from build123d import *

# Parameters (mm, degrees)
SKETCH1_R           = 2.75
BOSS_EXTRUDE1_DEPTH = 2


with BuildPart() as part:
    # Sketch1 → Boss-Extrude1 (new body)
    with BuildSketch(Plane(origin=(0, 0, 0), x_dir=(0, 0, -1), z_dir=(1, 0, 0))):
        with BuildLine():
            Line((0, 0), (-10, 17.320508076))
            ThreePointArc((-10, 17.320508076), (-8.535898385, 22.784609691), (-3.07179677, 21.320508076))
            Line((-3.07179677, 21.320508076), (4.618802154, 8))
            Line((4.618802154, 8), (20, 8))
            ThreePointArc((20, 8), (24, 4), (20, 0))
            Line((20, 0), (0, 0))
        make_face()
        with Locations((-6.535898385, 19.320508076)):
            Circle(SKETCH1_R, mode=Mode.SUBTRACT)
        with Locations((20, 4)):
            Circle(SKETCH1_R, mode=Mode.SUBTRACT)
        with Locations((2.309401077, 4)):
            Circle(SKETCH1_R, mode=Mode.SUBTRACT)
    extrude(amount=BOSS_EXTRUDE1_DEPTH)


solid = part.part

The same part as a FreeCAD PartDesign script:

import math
import FreeCAD as App
import Part
import Sketcher
from FreeCAD import Vector
Q = App.Units.Quantity

doc = App.newDocument("Part")
params = doc.addObject("Spreadsheet::Sheet", "Params")
for row, (alias, value) in enumerate([
    ("sketch1_radius", "4 mm"),
    ("sketch1_diameter", "5.5 mm"),
    ("sketch1_height", "20 mm"),
    ("sketch1_length", "20 mm"),
    ("pad1_length", "2 mm"),
], start=1):
    params.set(f"A{row}", alias)
    params.set(f"B{row}", "=" + value)
    params.setAlias(f"B{row}", alias)

body = doc.addObject("PartDesign::Body", "Body")

sketch1 = body.newObject("Sketcher::SketchObject", "Sketch")
sketch1.AttachmentSupport = (doc.getObject("YZ_Plane"), [""])
sketch1.MapMode = "FlatFace"
sketch1.addGeometry(Part.LineSegment(Vector(17.3, 10, 0), Vector(0, 0, 0)), False)
sketch1.addGeometry(Part.LineSegment(Vector(0, 0, 0), Vector(0, -20, 0)), False)
sketch1.addGeometry(Part.ArcOfCircle(Part.Circle(Vector(4, -20, 0), Vector(0, 0, 1), 4), math.radians(180), math.radians(360)), False)
sketch1.addGeometry(Part.LineSegment(Vector(8, -20, 0), Vector(8, -4.6, 0)), False)
sketch1.addGeometry(Part.LineSegment(Vector(8, -4.6, 0), Vector(21.3, 3.1, 0)), False)
sketch1.addGeometry(Part.ArcOfCircle(Part.Circle(Vector(19.3, 6.5, 0), Vector(0, 0, 1), 4), math.radians(-60), math.radians(120)), False)
sketch1.addGeometry(Part.Circle(Vector(4, -20, 0), Vector(0, 0, 1), 2.8), False)
sketch1.addGeometry(Part.Circle(Vector(4, -2.3, 0), Vector(0, 0, 1), 2.8), False)
sketch1.addGeometry(Part.Circle(Vector(19.3, 6.5, 0), Vector(0, 0, 1), 2.8), False)
sketch1.addConstraint(Sketcher.Constraint("Coincident", 0, 2, 1, 1))
sketch1.addConstraint(Sketcher.Constraint("Tangent", 1, 2, 2, 1))
sketch1.addConstraint(Sketcher.Constraint("Tangent", 2, 2, 3, 1))
sketch1.addConstraint(Sketcher.Constraint("Coincident", 3, 2, 4, 1))
sketch1.addConstraint(Sketcher.Constraint("Tangent", 4, 2, 5, 1))
sketch1.addConstraint(Sketcher.Constraint("Tangent", 5, 2, 0, 1))
sketch1.addConstraint(Sketcher.Constraint("Vertical", 1))
sketch1.addConstraint(Sketcher.Constraint("Vertical", 3))
sketch1.addConstraint(Sketcher.Constraint("Coincident", 0, 2, -1, 1))
sketch1.addConstraint(Sketcher.Constraint("Coincident", 6, 3, 2, 3))
sketch1.addConstraint(Sketcher.Constraint("Coincident", 8, 3, 5, 3))
sketch1.addConstraint(Sketcher.Constraint("Equal", 2, 5))
sketch1.addConstraint(Sketcher.Constraint("Equal", 6, 7))
sketch1.addConstraint(Sketcher.Constraint("Equal", 7, 8))
sketch1.addConstraint(Sketcher.Constraint("Parallel", 0, 4))
sketch1.addConstraint(Sketcher.Constraint("Vertical", 6, 3, 7, 3))
sketch1.addConstraint(Sketcher.Constraint("Radius", 2, 4.0))
sketch1.addConstraint(Sketcher.Constraint("Diameter", 6, 5.5))
sketch1.addConstraint(Sketcher.Constraint("DistanceY", 1, 2, 1, 1, 20.0))
sketch1.addConstraint(Sketcher.Constraint("Angle", 0, Q("-150 deg")))
sketch1.addConstraint(Sketcher.Constraint("Distance", 0, 20.0))
sketch1.addConstraint(Sketcher.Constraint("DistanceY", 7, 3, -1, 1, 2.309401))
sketch1.setExpression("Constraints[16]", "Params.sketch1_radius")
sketch1.setExpression("Constraints[17]", "Params.sketch1_diameter")
sketch1.setExpression("Constraints[18]", "Params.sketch1_height")
sketch1.setExpression("Constraints[20]", "Params.sketch1_length")
pad1 = body.newObject("PartDesign::Pad", "Pad")
pad1.Profile = sketch1
pad1.setExpression("Length", "Params.pad1_length")

doc.recompute()
